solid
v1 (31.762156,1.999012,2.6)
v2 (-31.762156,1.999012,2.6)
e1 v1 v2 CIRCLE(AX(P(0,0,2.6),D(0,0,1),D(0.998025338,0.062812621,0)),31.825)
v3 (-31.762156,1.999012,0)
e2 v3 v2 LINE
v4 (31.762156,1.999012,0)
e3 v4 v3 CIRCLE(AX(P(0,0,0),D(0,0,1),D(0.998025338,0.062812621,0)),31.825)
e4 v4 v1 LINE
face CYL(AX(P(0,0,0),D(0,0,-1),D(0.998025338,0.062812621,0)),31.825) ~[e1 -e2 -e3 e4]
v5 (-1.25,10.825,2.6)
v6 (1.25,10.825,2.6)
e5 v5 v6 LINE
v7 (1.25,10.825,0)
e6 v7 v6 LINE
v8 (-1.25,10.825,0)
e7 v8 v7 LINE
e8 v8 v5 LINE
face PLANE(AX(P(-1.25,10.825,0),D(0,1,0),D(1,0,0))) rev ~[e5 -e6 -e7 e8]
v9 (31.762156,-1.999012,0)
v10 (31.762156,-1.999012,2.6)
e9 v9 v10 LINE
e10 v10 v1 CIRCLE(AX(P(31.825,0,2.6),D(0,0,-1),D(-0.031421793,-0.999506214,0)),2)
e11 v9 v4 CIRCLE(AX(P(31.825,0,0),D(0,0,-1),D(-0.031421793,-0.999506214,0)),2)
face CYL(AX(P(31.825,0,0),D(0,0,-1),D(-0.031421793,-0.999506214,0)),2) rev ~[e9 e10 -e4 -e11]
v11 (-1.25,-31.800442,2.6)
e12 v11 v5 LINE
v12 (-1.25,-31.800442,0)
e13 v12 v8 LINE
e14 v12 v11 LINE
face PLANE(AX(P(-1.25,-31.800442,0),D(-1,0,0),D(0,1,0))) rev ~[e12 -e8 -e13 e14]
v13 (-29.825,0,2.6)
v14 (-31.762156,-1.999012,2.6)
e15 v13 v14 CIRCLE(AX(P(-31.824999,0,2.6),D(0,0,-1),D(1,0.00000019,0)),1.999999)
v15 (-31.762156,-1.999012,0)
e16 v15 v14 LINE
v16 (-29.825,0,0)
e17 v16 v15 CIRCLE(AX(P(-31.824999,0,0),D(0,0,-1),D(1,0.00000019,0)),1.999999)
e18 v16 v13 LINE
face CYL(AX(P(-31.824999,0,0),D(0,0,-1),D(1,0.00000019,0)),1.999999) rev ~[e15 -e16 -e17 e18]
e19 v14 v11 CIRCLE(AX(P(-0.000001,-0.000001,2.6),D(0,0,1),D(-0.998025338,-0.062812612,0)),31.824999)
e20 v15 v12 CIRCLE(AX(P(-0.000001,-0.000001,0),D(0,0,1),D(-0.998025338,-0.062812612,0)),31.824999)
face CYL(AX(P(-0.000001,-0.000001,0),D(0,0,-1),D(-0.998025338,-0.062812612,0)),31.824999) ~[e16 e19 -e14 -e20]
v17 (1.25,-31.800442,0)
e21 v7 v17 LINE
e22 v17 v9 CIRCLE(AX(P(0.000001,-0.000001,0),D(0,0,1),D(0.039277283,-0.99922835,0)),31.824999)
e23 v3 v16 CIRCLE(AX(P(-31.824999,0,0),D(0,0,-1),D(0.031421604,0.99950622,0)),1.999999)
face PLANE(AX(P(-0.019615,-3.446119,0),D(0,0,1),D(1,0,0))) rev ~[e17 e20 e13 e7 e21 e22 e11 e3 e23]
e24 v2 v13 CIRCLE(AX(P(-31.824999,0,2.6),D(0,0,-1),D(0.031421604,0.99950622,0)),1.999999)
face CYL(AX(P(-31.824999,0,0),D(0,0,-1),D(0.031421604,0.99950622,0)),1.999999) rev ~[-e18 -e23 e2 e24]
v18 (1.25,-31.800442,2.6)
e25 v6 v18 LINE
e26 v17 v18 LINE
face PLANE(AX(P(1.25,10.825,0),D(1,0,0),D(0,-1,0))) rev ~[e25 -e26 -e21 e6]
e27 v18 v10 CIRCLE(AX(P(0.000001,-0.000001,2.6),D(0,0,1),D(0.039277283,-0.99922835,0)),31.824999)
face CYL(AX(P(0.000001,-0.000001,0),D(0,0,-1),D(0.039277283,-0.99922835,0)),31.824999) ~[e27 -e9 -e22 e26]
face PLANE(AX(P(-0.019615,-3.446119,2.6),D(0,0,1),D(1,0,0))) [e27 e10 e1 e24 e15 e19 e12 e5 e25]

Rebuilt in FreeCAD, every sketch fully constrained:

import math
import FreeCAD as App
import Part
import Sketcher
Q = App.Units.Quantity

doc = App.newDocument("Part")
body = doc.addObject("PartDesign::Body", "Body")

sketch1 = body.newObject("Sketcher::SketchObject", "Sketch")
sketch1.AttachmentSupport = (doc.getObject("XY_Plane"), [""])
sketch1.MapMode = "FlatFace"
sketch1.addGeometry([
    Part.ArcOfCircle(Part.Circle(App.Vector(31.8, 0, 0), App.Vector(0, 0, 1), 2), math.radians(92), math.radians(268)),
    Part.ArcOfCircle(Part.Circle(App.Vector(0, 0, 0), App.Vector(0, 0, 1), 31.8), math.radians(4), math.radians(176)),
    Part.ArcOfCircle(Part.Circle(App.Vector(-31.8, 0, 0), App.Vector(0, 0, 1), 2), math.radians(0), math.radians(88)),
    Part.ArcOfCircle(Part.Circle(App.Vector(-31.8, 0, 0), App.Vector(0, 0, 1), 2), math.radians(-88), math.radians(0)),
    Part.ArcOfCircle(Part.Circle(App.Vector(0, 0, 0), App.Vector(0, 0, 1), 31.8), math.radians(-176), math.radians(-92)),
    Part.LineSegment(App.Vector(-1.2, -31.8, 0), App.Vector(-1.2, 10.8, 0)),
    Part.LineSegment(App.Vector(-1.2, 10.8, 0), App.Vector(1.2, 10.8, 0)),
    Part.LineSegment(App.Vector(1.2, 10.8, 0), App.Vector(1.2, -31.8, 0)),
    Part.ArcOfCircle(Part.Circle(App.Vector(0, 0, 0), App.Vector(0, 0, 1), 31.8), math.radians(-88), math.radians(-4)),
], False)
sketch1.addConstraint([
    Sketcher.Constraint("Coincident", 0, 1, 1, 1),
    Sketcher.Constraint("Coincident", 1, 2, 2, 2),
    Sketcher.Constraint("Tangent", 2, 1, 3, 2),
    Sketcher.Constraint("Coincident", 3, 1, 4, 1),
    Sketcher.Constraint("Coincident", 4, 2, 5, 1),
    Sketcher.Constraint("Coincident", 5, 2, 6, 1),
    Sketcher.Constraint("Coincident", 6, 2, 7, 1),
    Sketcher.Constraint("Coincident", 7, 2, 8, 1),
    Sketcher.Constraint("Coincident", 8, 2, 0, 2),
    Sketcher.Constraint("Vertical", 5),
    Sketcher.Constraint("Horizontal", 6),
    Sketcher.Constraint("Vertical", 7),
    Sketcher.Constraint("Coincident", 1, 3, -1, 1),
    Sketcher.Constraint("Coincident", 4, 3, -1, 1),
    Sketcher.Constraint("Coincident", 8, 3, -1, 1),
    Sketcher.Constraint("Equal", 0, 2),
    Sketcher.Constraint("Equal", 2, 3),
    Sketcher.Constraint("Equal", 1, 4),
    Sketcher.Constraint("Equal", 4, 8),
    Sketcher.Constraint("Symmetric", 0, 3, 2, 3, -1, 1),
    Sketcher.Constraint("PointOnObject", 0, 3, -1),
    Sketcher.Constraint("PointOnObject", 2, 1, -1),
    Sketcher.Constraint("Horizontal", 4, 2, 7, 2),
    Sketcher.Constraint("Radius", 0, Q("2 mm")),
    Sketcher.Constraint("DistanceX", 6, 1, 6, 2, Q("2.5 mm")),
    Sketcher.Constraint("Radius", 1, Q("31.825 mm")),
    Sketcher.Constraint("DistanceX", 2, 3, 0, 3, Q("63.649999 mm")),
    Sketcher.Constraint("DistanceY", -1, 1, 5, 2, Q("10.825 mm")),
])
pad1 = body.newObject("PartDesign::Pad", "Pad")
pad1.Profile = sketch1
pad1.Length = 2.6

doc.recompute()
